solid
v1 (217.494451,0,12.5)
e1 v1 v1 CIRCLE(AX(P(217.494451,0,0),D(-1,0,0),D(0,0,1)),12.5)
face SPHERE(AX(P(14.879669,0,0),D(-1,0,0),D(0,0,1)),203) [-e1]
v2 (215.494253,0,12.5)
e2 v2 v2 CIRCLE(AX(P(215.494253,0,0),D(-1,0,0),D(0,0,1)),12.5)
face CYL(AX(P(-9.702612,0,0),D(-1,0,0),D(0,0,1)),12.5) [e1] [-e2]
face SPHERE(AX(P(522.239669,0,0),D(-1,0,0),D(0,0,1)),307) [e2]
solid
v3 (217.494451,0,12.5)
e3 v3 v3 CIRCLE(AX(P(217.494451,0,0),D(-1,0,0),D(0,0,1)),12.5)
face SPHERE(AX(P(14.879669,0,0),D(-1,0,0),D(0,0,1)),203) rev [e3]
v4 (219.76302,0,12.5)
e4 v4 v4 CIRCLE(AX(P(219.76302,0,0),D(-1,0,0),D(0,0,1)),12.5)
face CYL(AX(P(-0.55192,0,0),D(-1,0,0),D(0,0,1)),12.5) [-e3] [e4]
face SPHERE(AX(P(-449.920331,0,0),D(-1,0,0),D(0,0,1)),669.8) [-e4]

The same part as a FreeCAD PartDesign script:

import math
import FreeCAD as App
import Part
import Sketcher

doc = App.newDocument("Part")
body = doc.addObject("PartDesign::Body", "Body")

# Sketch on XZ plane
sketch1 = body.newObject("Sketcher::SketchObject", "Sketch")
sketch1.AttachmentSupport = (doc.getObject("XZ_Plane"), [""])
sketch1.MapMode = "FlatFace"
sketch1.addGeometry([
    Part.ArcOfCircle(Part.Circle(App.Vector(522.2, 0, 0), App.Vector(0, 0, 1), 307), math.radians(180), math.radians(182.33)),
    Part.LineSegment(App.Vector(215.2, 0, 0), App.Vector(217.9, 0, 0)),
    Part.ArcOfCircle(Part.Circle(App.Vector(14.9, 0, 0), App.Vector(0, 0, 1), 203), math.radians(-3.53), math.radians(0)),
    Part.LineSegment(App.Vector(217.5, -12.5, 0), App.Vector(215.5, -12.5, 0)),
], False)
sketch1.addConstraint([
    Sketcher.Constraint("Coincident", 0, 1, 1, 1),
    Sketcher.Constraint("Coincident", 1, 2, 2, 2),
    Sketcher.Constraint("Coincident", 2, 1, 3, 1),
    Sketcher.Constraint("Coincident", 3, 2, 0, 2),
    Sketcher.Constraint("Horizontal", 1),
    Sketcher.Constraint("Horizontal", 3),
    Sketcher.Constraint("PointOnObject", 0, 3, -1),
    Sketcher.Constraint("PointOnObject", 2, 3, -1),
    Sketcher.Constraint("PointOnObject", 0, 1, -1),
    Sketcher.Constraint("Radius", 0, 306.999999),
    Sketcher.Constraint("Radius", 2, 203.000001),
    Sketcher.Constraint("DistanceX", 1, 1, 1, 2, 2.64),
    Sketcher.Constraint("DistanceY", 2, 1, -1, 1, 12.5),
    Sketcher.Constraint("DistanceX", -1, 1, 0, 1, 215.239669),
])
revolution = body.newObject("PartDesign::Revolution", "Revolution")
revolution.Profile = sketch1
revolution.ReferenceAxis = (sketch1, ["H_Axis"])
revolution.Angle = 360
body2 = doc.addObject("PartDesign::Body", "Body001")

# Sketch on XZ plane
sketch2 = body2.newObject("Sketcher::SketchObject", "Sketch001")
sketch2.AttachmentSupport = (doc.getObject("XZ_Plane001"), [""])
sketch2.MapMode = "FlatFace"
sketch2.addGeometry([
    Part.LineSegment(App.Vector(219.8, -12.5, 0), App.Vector(217.5, -12.5, 0)),
    Part.ArcOfCircle(Part.Circle(App.Vector(14.9, 0, 0), App.Vector(0, 0, 1), 203), math.radians(-3.53), math.radians(0)),
    Part.LineSegment(App.Vector(217.9, 0, 0), App.Vector(219.9, 0, 0)),
    Part.ArcOfCircle(Part.Circle(App.Vector(-449.9, 0, 0), App.Vector(0, 0, 1), 669.8), math.radians(-1.07), math.radians(0)),
], False)
sketch2.addConstraint([
    Sketcher.Constraint("Coincident", 0, 2, 1, 1),
    Sketcher.Constraint("Coincident", 1, 2, 2, 1),
    Sketcher.Constraint("Coincident", 2, 2, 3, 2),
    Sketcher.Constraint("Coincident", 3, 1, 0, 1),
    Sketcher.Constraint("Horizontal", 0),
    Sketcher.Constraint("Horizontal", 2),
    Sketcher.Constraint("PointOnObject", 1, 3, -1),
    Sketcher.Constraint("PointOnObject", 3, 3, -1),
    Sketcher.Constraint("PointOnObject", 1, 2, -1),
    Sketcher.Constraint("Radius", 1, 203.000001),
    Sketcher.Constraint("DistanceX", 2, 1, 2, 2, 2.0),
    Sketcher.Constraint("DistanceY", 0, 2, -1, 1, 12.5),
    Sketcher.Constraint("Radius", 3, 669.800019),
    Sketcher.Constraint("DistanceX", 3, 3, -1, 1, 449.92035),
])
revolution2 = body2.newObject("PartDesign::Revolution", "Revolution001")
revolution2.Profile = sketch2
revolution2.ReferenceAxis = (sketch2, ["H_Axis"])
revolution2.Angle = 360

doc.recompute()
